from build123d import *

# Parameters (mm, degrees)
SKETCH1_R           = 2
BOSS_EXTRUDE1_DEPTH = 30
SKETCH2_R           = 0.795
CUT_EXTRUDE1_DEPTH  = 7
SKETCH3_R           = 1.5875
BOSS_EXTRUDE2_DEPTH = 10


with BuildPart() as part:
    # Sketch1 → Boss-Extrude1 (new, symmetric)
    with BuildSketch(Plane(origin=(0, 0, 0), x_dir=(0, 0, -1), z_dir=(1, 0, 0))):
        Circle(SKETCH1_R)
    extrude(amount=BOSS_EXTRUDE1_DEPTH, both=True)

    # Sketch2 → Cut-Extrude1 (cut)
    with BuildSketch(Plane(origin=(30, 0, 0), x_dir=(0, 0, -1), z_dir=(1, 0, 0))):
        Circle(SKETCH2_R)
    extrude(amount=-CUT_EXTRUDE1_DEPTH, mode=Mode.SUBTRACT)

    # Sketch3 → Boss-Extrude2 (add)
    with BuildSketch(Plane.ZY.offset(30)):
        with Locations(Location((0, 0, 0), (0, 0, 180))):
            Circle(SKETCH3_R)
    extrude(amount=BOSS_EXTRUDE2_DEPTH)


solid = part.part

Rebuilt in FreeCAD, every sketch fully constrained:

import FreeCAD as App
import Part
import Sketcher
from FreeCAD import Vector

doc = App.newDocument("Part")
body = doc.addObject("PartDesign::Body", "Body")

sketch1 = body.newObject("Sketcher::SketchObject", "Sketch")
sketch1.AttachmentSupport = (doc.getObject("YZ_Plane"), [""])
sketch1.MapMode = "FlatFace"
sketch1.addGeometry(Part.Circle(Vector(0, 0, 0), Vector(0, 0, 1), 2), False)
sketch1.addConstraint([
    Sketcher.Constraint("Coincident", 0, 3, -1, 1),
    Sketcher.Constraint("Diameter", 0, 4.0),
])
pad1 = body.newObject("PartDesign::Pad", "Pad")
pad1.Profile = sketch1
pad1.Length = 60
pad1.Midplane = True

sketch2 = body.newObject("Sketcher::SketchObject", "Sketch001")
sketch2.AttachmentSupport = (doc.getObject("YZ_Plane"), [""])
sketch2.MapMode = "FlatFace"
sketch2.AttachmentOffset = App.Placement(Vector(0, 0, 30), App.Rotation())
sketch2.addGeometry(Part.Circle(Vector(0, 0, 0), Vector(0, 0, 1), 0.8), False)
sketch2.addConstraint([
    Sketcher.Constraint("Coincident", 0, 3, -1, 1),
    Sketcher.Constraint("Diameter", 0, 1.59),
])
pocket1 = body.newObject("PartDesign::Pocket", "Pocket")
pocket1.Profile = sketch2
pocket1.Length = 7

sketch3 = body.newObject("Sketcher::SketchObject", "Sketch002")
sketch3.AttachmentSupport = (doc.getObject("YZ_Plane"), [""])
sketch3.MapMode = "FlatFace"
sketch3.AttachmentOffset = App.Placement(Vector(0, 0, -30), App.Rotation())
sketch3.addGeometry(Part.Circle(Vector(0, 0, 0), Vector(0, 0, 1), 1.6), False)
sketch3.addConstraint([
    Sketcher.Constraint("Coincident", 0, 3, -1, 1),
    Sketcher.Constraint("Diameter", 0, 3.175),
])
pad2 = body.newObject("PartDesign::Pad", "Pad001")
pad2.Profile = sketch3
pad2.Length = 10
pad2.Reversed = True

doc.recompute()
